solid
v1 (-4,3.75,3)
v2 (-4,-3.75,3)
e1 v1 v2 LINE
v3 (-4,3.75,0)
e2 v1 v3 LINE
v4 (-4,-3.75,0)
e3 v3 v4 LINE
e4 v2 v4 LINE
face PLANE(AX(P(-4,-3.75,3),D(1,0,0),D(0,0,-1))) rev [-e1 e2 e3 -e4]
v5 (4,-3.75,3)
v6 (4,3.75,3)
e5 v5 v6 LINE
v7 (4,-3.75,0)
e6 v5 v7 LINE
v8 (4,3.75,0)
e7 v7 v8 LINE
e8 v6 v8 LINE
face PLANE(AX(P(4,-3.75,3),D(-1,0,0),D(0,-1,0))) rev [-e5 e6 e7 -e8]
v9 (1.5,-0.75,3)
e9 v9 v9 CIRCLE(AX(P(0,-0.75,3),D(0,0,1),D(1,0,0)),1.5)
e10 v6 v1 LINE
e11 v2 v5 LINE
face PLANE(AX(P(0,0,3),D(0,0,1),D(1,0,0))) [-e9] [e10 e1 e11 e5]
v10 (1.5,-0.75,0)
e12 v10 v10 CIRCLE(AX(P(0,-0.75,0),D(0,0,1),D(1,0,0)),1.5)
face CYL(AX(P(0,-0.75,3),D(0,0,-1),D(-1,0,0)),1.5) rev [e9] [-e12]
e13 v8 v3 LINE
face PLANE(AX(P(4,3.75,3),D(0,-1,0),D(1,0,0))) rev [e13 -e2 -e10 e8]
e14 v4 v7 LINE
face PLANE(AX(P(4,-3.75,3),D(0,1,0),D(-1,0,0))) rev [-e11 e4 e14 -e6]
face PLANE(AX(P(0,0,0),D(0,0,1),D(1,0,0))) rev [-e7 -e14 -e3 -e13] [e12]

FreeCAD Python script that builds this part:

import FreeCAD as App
import Part
import Sketcher
Q = App.Units.Quantity


def add_polygon(sketch, points):
    """Adds a closed chain of lines whose ends are joined by coincident constraints."""
    first, n = sketch.GeometryCount, len(points)
    for a, b in zip(points, points[1:] + points[:1]):
        sketch.addGeometry(Part.LineSegment(App.Vector(*a, 0), App.Vector(*b, 0)), False)
    for i in range(n):
        sketch.addConstraint(Sketcher.Constraint("Coincident", first + i, 2, first + (i + 1) % n, 1))

doc = App.newDocument("Part")
body = doc.addObject("PartDesign::Body", "Body")

sketch1 = doc.addObject("Sketcher::SketchObject", "Sketch")
body.addObject(sketch1)
sketch1.AttachmentSupport = (doc.XY_Plane, [""])
sketch1.MapMode = "FlatFace"
add_polygon(sketch1, [(-4, 3.8), (-4, -3.8), (4, -3.8), (4, 3.8)])
sketch1.addGeometry(Part.Circle(App.Vector(0, -0.8, 0), App.Vector(0, 0, 1), 1.5), False)
sketch1.addConstraint([
    Sketcher.Constraint("Vertical", 0),
    Sketcher.Constraint("Horizontal", 1),
    Sketcher.Constraint("Vertical", 2),
    Sketcher.Constraint("Horizontal", 3),
    Sketcher.Constraint("Symmetric", 0, 2, 2, 2, -1, 1),
    Sketcher.Constraint("PointOnObject", 4, 3, -2),
    Sketcher.Constraint("Diameter", 4, Q("3 mm")),
    Sketcher.Constraint("DistanceX", 1, 1, 1, 2, Q("8 mm")),
    Sketcher.Constraint("DistanceY", 0, 2, 0, 1, Q("7.5 mm")),
    Sketcher.Constraint("DistanceY", 0, 2, 4, 3, Q("3 mm")),
])
pad1 = doc.addObject("PartDesign::Pad", "Pad")
body.addObject(pad1)
pad1.Profile = sketch1
pad1.Length = 3

doc.recompute()
